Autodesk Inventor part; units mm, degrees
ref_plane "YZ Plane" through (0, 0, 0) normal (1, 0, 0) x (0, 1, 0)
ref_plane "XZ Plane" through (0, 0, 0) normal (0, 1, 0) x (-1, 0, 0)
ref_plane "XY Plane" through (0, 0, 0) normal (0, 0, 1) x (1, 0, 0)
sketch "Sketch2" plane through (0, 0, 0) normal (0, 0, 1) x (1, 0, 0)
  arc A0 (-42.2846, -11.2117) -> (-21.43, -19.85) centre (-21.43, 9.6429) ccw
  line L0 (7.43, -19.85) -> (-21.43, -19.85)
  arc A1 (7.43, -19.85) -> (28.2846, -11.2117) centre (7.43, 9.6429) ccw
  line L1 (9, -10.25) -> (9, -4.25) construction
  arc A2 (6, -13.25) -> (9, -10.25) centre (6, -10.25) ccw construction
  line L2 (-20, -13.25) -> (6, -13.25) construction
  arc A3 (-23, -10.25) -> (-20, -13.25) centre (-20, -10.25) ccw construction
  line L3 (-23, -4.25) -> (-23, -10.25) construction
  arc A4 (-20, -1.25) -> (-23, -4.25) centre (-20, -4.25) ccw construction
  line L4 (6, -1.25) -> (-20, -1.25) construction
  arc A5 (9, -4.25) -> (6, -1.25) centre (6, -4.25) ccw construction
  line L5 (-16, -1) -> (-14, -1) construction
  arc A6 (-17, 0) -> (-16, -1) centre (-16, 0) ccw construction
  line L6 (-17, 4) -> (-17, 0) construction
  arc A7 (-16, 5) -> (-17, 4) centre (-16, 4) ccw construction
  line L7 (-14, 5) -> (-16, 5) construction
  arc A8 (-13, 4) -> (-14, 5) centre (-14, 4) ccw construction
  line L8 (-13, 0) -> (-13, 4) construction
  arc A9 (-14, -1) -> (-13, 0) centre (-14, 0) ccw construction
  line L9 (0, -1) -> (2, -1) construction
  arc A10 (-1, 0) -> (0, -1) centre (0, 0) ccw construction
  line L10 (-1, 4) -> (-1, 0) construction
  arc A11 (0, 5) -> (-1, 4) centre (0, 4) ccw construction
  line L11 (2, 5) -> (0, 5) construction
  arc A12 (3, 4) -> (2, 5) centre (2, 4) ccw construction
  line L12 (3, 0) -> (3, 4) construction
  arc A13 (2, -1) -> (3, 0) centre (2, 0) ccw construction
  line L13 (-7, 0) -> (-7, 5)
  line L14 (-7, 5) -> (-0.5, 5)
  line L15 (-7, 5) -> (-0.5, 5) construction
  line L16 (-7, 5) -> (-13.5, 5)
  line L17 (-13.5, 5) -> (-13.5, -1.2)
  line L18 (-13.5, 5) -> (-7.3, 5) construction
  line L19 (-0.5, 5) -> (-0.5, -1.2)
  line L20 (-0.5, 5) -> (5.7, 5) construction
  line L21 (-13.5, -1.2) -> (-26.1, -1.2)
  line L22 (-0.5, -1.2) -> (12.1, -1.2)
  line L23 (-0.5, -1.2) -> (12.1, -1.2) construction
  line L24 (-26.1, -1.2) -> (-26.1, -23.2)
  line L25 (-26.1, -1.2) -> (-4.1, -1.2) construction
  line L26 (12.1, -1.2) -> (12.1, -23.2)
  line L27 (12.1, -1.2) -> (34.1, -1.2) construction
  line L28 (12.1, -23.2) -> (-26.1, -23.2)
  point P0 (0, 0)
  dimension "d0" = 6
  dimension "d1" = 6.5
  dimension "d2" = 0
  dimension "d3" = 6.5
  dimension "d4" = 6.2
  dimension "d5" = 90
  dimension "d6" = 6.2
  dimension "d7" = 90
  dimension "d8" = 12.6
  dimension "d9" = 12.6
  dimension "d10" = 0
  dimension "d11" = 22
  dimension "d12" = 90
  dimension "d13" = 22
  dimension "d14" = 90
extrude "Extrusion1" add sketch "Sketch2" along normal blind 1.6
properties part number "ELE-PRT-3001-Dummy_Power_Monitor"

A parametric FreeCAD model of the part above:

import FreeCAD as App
import Part
import Sketcher
from FreeCAD import Vector

doc = App.newDocument("Part")
params = doc.addObject("Spreadsheet::Sheet", "Params")
for row, (alias, value) in enumerate([
    ("sketch1_height", "22 mm"),
    ("sketch1_width", "12.6 mm"),
    ("sketch1_height2", "6.2 mm"),
    ("sketch1_width2", "13 mm"),
    ("pad1_length", "1.6 mm"),
], start=1):
    params.set(f"A{row}", alias)
    params.set(f"B{row}", "=" + value)
    params.setAlias(f"B{row}", alias)

body = doc.addObject("PartDesign::Body", "Body")

# Sketch on XY plane
sketch1 = body.newObject("Sketcher::SketchObject", "Sketch")
sketch1.AttachmentSupport = (doc.getObject("XY_Plane"), [""])
sketch1.MapMode = "FlatFace"
sketch1.addGeometry([
    Part.LineSegment(Vector(-26.1, -1.2, 0), Vector(-26.1, -23.2, 0)),  # 0
    Part.LineSegment(Vector(-26.1, -23.2, 0), Vector(12.1, -23.2, 0)),  # 1
    Part.LineSegment(Vector(12.1, -23.2, 0), Vector(12.1, -1.2, 0)),  # 2
    Part.LineSegment(Vector(12.1, -1.2, 0), Vector(-0.5, -1.2, 0)),  # 3
    Part.LineSegment(Vector(-0.5, -1.2, 0), Vector(-0.5, 5, 0)),  # 4
    Part.LineSegment(Vector(-0.5, 5, 0), Vector(-13.5, 5, 0)),  # 5
    Part.LineSegment(Vector(-13.5, 5, 0), Vector(-13.5, -1.2, 0)),  # 6
    Part.LineSegment(Vector(-13.5, -1.2, 0), Vector(-26.1, -1.2, 0)),  # 7
], False)
sketch1.addConstraint([
    Sketcher.Constraint("Coincident", 0, 2, 1, 1),
    Sketcher.Constraint("Coincident", 1, 2, 2, 1),
    Sketcher.Constraint("Coincident", 2, 2, 3, 1),
    Sketcher.Constraint("Coincident", 3, 2, 4, 1),
    Sketcher.Constraint("Coincident", 4, 2, 5, 1),
    Sketcher.Constraint("Coincident", 5, 2, 6, 1),
    Sketcher.Constraint("Coincident", 6, 2, 7, 1),
    Sketcher.Constraint("Coincident", 7, 2, 0, 1),
    Sketcher.Constraint("Vertical", 0),
    Sketcher.Constraint("Horizontal", 1),
    Sketcher.Constraint("Vertical", 2),
    Sketcher.Constraint("Horizontal", 3),
    Sketcher.Constraint("Vertical", 4),
    Sketcher.Constraint("Horizontal", 5),
    Sketcher.Constraint("Vertical", 6),
    Sketcher.Constraint("Horizontal", 7),
    Sketcher.Constraint("Horizontal", 3, 2, 6, 2),
    Sketcher.Constraint("Equal", 3, 7),
    Sketcher.Constraint("DistanceY", 0, 2, 0, 1, 22.0),
    Sketcher.Constraint("DistanceX", 3, 2, 3, 1, 12.6),
    Sketcher.Constraint("DistanceY", 4, 1, 4, 2, 6.2),
    Sketcher.Constraint("DistanceX", 5, 2, 5, 1, 13.0),
    Sketcher.Constraint("DistanceY", -1, 1, 4, 2, 5.0),
    Sketcher.Constraint("DistanceX", 0, 2, -1, 1, 26.1),
])
sketch1.setExpression("Constraints[18]", "Params.sketch1_height")
sketch1.setExpression("Constraints[19]", "Params.sketch1_width")
sketch1.setExpression("Constraints[20]", "Params.sketch1_height2")
sketch1.setExpression("Constraints[21]", "Params.sketch1_width2")
pad1 = body.newObject("PartDesign::Pad", "Pad")
pad1.Profile = sketch1
pad1.setExpression("Length", "Params.pad1_length")

doc.recompute()
